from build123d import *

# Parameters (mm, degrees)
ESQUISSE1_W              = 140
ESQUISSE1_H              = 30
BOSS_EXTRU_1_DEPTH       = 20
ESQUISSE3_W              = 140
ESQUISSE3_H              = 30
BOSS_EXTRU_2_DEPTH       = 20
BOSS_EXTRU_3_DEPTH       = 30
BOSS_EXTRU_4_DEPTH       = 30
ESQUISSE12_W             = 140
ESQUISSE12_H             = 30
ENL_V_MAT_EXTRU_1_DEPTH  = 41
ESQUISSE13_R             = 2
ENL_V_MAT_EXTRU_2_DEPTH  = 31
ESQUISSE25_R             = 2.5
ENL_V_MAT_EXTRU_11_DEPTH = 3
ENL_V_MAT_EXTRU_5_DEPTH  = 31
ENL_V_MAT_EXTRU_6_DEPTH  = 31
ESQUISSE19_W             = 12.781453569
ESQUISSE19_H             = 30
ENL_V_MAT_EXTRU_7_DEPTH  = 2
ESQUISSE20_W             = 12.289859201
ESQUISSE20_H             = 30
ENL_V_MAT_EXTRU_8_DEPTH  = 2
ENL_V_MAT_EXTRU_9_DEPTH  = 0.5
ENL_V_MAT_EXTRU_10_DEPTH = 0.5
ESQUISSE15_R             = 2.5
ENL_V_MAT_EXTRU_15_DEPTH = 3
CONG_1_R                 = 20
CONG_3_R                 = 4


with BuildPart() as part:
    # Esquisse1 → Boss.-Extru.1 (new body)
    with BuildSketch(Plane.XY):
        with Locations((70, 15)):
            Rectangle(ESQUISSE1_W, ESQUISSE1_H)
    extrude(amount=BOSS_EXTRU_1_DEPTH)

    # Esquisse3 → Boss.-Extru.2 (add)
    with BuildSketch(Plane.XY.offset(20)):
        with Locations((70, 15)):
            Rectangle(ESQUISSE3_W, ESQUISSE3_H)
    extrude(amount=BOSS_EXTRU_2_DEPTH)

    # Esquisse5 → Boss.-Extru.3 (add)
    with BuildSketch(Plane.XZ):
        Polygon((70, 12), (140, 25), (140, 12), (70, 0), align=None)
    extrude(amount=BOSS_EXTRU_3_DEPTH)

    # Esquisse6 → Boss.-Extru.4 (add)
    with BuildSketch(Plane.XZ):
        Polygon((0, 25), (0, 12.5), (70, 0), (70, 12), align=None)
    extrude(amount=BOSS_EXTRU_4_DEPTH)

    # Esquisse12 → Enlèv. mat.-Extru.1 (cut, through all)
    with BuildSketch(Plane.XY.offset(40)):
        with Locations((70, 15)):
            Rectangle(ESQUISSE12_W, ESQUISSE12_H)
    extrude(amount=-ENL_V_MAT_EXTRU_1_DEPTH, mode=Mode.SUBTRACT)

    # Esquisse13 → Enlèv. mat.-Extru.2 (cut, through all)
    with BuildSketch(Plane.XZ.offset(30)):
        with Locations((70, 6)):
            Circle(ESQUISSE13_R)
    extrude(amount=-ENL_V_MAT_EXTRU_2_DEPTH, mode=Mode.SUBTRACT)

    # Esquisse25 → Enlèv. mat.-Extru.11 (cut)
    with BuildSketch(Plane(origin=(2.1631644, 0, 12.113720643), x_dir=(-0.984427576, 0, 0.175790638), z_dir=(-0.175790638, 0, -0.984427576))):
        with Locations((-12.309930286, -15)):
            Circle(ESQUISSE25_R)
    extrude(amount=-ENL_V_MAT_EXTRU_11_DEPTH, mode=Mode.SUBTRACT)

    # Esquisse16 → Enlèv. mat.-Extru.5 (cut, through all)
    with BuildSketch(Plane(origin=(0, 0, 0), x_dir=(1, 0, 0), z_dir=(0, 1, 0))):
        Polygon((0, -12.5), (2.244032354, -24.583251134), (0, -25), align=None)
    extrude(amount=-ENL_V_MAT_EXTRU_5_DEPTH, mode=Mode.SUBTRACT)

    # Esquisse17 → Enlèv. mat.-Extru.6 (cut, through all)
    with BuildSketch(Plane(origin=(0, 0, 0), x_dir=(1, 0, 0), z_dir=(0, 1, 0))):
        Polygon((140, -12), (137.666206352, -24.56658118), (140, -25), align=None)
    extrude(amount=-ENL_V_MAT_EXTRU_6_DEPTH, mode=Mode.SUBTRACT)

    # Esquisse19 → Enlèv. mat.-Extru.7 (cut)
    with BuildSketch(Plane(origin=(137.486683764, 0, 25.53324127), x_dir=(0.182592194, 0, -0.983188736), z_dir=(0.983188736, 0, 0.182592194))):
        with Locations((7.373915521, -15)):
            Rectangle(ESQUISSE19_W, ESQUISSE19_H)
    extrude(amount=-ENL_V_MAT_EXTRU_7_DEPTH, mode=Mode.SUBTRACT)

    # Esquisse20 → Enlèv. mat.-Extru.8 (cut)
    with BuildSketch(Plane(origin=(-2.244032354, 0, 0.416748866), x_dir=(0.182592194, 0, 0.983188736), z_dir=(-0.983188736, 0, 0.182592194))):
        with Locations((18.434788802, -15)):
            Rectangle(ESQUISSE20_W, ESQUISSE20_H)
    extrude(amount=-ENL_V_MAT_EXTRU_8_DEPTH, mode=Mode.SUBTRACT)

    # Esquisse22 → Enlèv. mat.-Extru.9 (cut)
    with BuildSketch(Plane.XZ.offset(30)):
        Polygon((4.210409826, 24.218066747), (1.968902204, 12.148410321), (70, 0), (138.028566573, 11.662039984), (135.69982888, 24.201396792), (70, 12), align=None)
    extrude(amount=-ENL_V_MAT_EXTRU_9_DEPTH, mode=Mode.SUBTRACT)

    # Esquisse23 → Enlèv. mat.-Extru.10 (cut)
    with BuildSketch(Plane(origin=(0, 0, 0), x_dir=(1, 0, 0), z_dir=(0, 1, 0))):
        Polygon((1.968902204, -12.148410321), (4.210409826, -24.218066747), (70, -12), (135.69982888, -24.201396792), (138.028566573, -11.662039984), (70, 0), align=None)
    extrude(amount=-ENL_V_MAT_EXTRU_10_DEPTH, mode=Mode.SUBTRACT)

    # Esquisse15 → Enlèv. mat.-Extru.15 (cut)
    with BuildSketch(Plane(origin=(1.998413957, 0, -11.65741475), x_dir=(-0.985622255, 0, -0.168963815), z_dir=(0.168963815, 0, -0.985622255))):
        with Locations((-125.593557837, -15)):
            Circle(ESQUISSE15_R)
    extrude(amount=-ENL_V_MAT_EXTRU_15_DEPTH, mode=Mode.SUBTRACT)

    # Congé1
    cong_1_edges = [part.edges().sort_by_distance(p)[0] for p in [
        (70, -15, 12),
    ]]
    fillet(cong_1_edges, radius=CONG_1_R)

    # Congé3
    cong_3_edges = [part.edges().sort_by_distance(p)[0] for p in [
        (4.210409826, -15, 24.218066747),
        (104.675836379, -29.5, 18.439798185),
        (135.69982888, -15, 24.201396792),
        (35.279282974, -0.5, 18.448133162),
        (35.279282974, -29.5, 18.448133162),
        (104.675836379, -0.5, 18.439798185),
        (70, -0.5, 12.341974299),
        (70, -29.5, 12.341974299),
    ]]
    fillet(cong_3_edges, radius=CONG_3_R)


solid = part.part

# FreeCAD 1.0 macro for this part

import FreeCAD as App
import Part
import Sketcher
Q = App.Units.Quantity


def edges_at(feature, points):
    """Names of the edges that pass closest to the given points."""
    edges = feature.Shape.Edges
    near = lambda p: min(range(len(edges)), key=lambda i: edges[i].distToShape(Part.Vertex(*p))[0])
    return sorted({f"Edge{near(p) + 1}" for p in points})

doc = App.newDocument("Part")
body = doc.addObject("PartDesign::Body", "Body")

# Sketch on XY plane
sketch1 = doc.addObject("Sketcher::SketchObject", "Sketch")
body.addObject(sketch1)
sketch1.AttachmentSupport = (doc.XY_Plane, [""])
sketch1.MapMode = "FlatFace"
sketch1.addGeometry(Part.LineSegment(App.Vector(0, 30, 0), App.Vector(0, 0, 0)), False)
sketch1.addGeometry(Part.LineSegment(App.Vector(0, 0, 0), App.Vector(140, 0, 0)), False)
sketch1.addGeometry(Part.LineSegment(App.Vector(140, 0, 0), App.Vector(140, 30, 0)), False)
sketch1.addGeometry(Part.LineSegment(App.Vector(140, 30, 0), App.Vector(0, 30, 0)), False)
sketch1.addConstraint(Sketcher.Constraint("Coincident", 0, 2, 1, 1))
sketch1.addConstraint(Sketcher.Constraint("Coincident", 1, 2, 2, 1))
sketch1.addConstraint(Sketcher.Constraint("Coincident", 2, 2, 3, 1))
sketch1.addConstraint(Sketcher.Constraint("Coincident", 3, 2, 0, 1))
sketch1.addConstraint(Sketcher.Constraint("Vertical", 0))
sketch1.addConstraint(Sketcher.Constraint("Horizontal", 1))
sketch1.addConstraint(Sketcher.Constraint("Vertical", 2))
sketch1.addConstraint(Sketcher.Constraint("Horizontal", 3))
sketch1.addConstraint(Sketcher.Constraint("Coincident", 0, 2, -1, 1))
sketch1.addConstraint(Sketcher.Constraint("DistanceX", 1, 1, 1, 2, Q("140 mm")))
sketch1.addConstraint(Sketcher.Constraint("DistanceY", 0, 2, 0, 1, Q("30 mm")))
pad1 = doc.addObject("PartDesign::Pad", "Pad")
body.addObject(pad1)
pad1.Profile = sketch1
pad1.Length = 20

# Sketch on XY plane
sketch2 = doc.addObject("Sketcher::SketchObject", "Sketch001")
body.addObject(sketch2)
sketch2.AttachmentSupport = (doc.XY_Plane, [""])
sketch2.MapMode = "FlatFace"
sketch2.AttachmentOffset = App.Placement(App.Vector(0, 0, 20), App.Rotation())
sketch2.addGeometry(Part.LineSegment(App.Vector(0, 30, 0), App.Vector(0, 0, 0)), False)
sketch2.addGeometry(Part.LineSegment(App.Vector(0, 0, 0), App.Vector(140, 0, 0)), False)
sketch2.addGeometry(Part.LineSegment(App.Vector(140, 0, 0), App.Vector(140, 30, 0)), False)
sketch2.addGeometry(Part.LineSegment(App.Vector(140, 30, 0), App.Vector(0, 30, 0)), False)
sketch2.addConstraint(Sketcher.Constraint("Coincident", 0, 2, 1, 1))
sketch2.addConstraint(Sketcher.Constraint("Coincident", 1, 2, 2, 1))
sketch2.addConstraint(Sketcher.Constraint("Coincident", 2, 2, 3, 1))
sketch2.addConstraint(Sketcher.Constraint("Coincident", 3, 2, 0, 1))
sketch2.addConstraint(Sketcher.Constraint("Vertical", 0))
sketch2.addConstraint(Sketcher.Constraint("Horizontal", 1))
sketch2.addConstraint(Sketcher.Constraint("Vertical", 2))
sketch2.addConstraint(Sketcher.Constraint("Horizontal", 3))
sketch2.addConstraint(Sketcher.Constraint("Coincident", 0, 2, -1, 1))
sketch2.addConstraint(Sketcher.Constraint("DistanceX", 1, 1, 1, 2, Q("140 mm")))
sketch2.addConstraint(Sketcher.Constraint("DistanceY", 0, 2, 0, 1, Q("30 mm")))
pad2 = doc.addObject("PartDesign::Pad", "Pad001")
body.addObject(pad2)
pad2.Profile = sketch2
pad2.Length = 20

# Sketch on XZ plane
sketch3 = doc.addObject("Sketcher::SketchObject", "Sketch002")
body.addObject(sketch3)
sketch3.AttachmentSupport = (doc.XZ_Plane, [""])
sketch3.MapMode = "FlatFace"
sketch3.addGeometry(Part.LineSegment(App.Vector(140, 25, 0), App.Vector(70, 12, 0)), False)
sketch3.addGeometry(Part.LineSegment(App.Vector(70, 12, 0), App.Vector(70, 0, 0)), False)
sketch3.addGeometry(Part.LineSegment(App.Vector(70, 0, 0), App.Vector(140, 12, 0)), False)
sketch3.addGeometry(Part.LineSegment(App.Vector(140, 12, 0), App.Vector(140, 25, 0)), False)
sketch3.addConstraint(Sketcher.Constraint("Coincident", 0, 2, 1, 1))
sketch3.addConstraint(Sketcher.Constraint("Coincident", 1, 2, 2, 1))
sketch3.addConstraint(Sketcher.Constraint("Coincident", 2, 2, 3, 1))
sketch3.addConstraint(Sketcher.Constraint("Coincident", 3, 2, 0, 1))
sketch3.addConstraint(Sketcher.Constraint("Vertical", 1))
sketch3.addConstraint(Sketcher.Constraint("Vertical", 3))
sketch3.addConstraint(Sketcher.Constraint("PointOnObject", 1, 2, -1))
sketch3.addConstraint(Sketcher.Constraint("Horizontal", 0, 2, 2, 2))
sketch3.addConstraint(Sketcher.Constraint("DistanceY", 1, 2, 1, 1, Q("12 mm")))
sketch3.addConstraint(Sketcher.Constraint("DistanceY", 3, 1, 3, 2, Q("13 mm")))
sketch3.addConstraint(Sketcher.Constraint("DistanceX", -1, 1, 0, 2, Q("70 mm")))
sketch3.addConstraint(Sketcher.Constraint("DistanceX", -1, 1, 2, 2, Q("140 mm")))
pad3 = doc.addObject("PartDesign::Pad", "Pad002")
body.addObject(pad3)
pad3.Profile = sketch3
pad3.Length = 30

# Sketch on XZ plane
sketch4 = doc.addObject("Sketcher::SketchObject", "Sketch003")
body.addObject(sketch4)
sketch4.AttachmentSupport = (doc.XZ_Plane, [""])
sketch4.MapMode = "FlatFace"
sketch4.addGeometry(Part.LineSegment(App.Vector(0, 25, 0), App.Vector(0, 12, 0)), False)
sketch4.addGeometry(Part.LineSegment(App.Vector(0, 12, 0), App.Vector(70, 0, 0)), False)
sketch4.addGeometry(Part.LineSegment(App.Vector(70, 0, 0), App.Vector(70, 12, 0)), False)
sketch4.addGeometry(Part.LineSegment(App.Vector(70, 12, 0), App.Vector(0, 25, 0)), False)
sketch4.addConstraint(Sketcher.Constraint("Coincident", 0, 2, 1, 1))
sketch4.addConstraint(Sketcher.Constraint("Coincident", 1, 2, 2, 1))
sketch4.addConstraint(Sketcher.Constraint("Coincident", 2, 2, 3, 1))
sketch4.addConstraint(Sketcher.Constraint("Coincident", 3, 2, 0, 1))
sketch4.addConstraint(Sketcher.Constraint("Vertical", 0))
sketch4.addConstraint(Sketcher.Constraint("Vertical", 2))
sketch4.addConstraint(Sketcher.Constraint("PointOnObject", 0, 2, -2))
sketch4.addConstraint(Sketcher.Constraint("PointOnObject", 1, 2, -1))
sketch4.addConstraint(Sketcher.Constraint("DistanceY", 2, 1, 2, 2, Q("12 mm")))
sketch4.addConstraint(Sketcher.Constraint("DistanceY", 0, 2, 0, 1, Q("12.5 mm")))
sketch4.addConstraint(Sketcher.Constraint("DistanceX", -1, 1, 1, 2, Q("70 mm")))
sketch4.addConstraint(Sketcher.Constraint("DistanceY", -1, 1, 3, 2, Q("25 mm")))
pad4 = doc.addObject("PartDesign::Pad", "Pad003")
body.addObject(pad4)
pad4.Profile = sketch4
pad4.Length = 30

# Sketch on XY plane
sketch5 = doc.addObject("Sketcher::SketchObject", "Sketch004")
body.addObject(sketch5)
sketch5.AttachmentSupport = (doc.XY_Plane, [""])
sketch5.MapMode = "FlatFace"
sketch5.AttachmentOffset = App.Placement(App.Vector(0, 0, 40), App.Rotation())
sketch5.addGeometry(Part.LineSegment(App.Vector(0, 30, 0), App.Vector(0, 0, 0)), False)
sketch5.addGeometry(Part.LineSegment(App.Vector(0, 0, 0), App.Vector(140, 0, 0)), False)
sketch5.addGeometry(Part.LineSegment(App.Vector(140, 0, 0), App.Vector(140, 30, 0)), False)
sketch5.addGeometry(Part.LineSegment(App.Vector(140, 30, 0), App.Vector(0, 30, 0)), False)
sketch5.addConstraint(Sketcher.Constraint("Coincident", 0, 2, 1, 1))
sketch5.addConstraint(Sketcher.Constraint("Coincident", 1, 2, 2, 1))
sketch5.addConstraint(Sketcher.Constraint("Coincident", 2, 2, 3, 1))
sketch5.addConstraint(Sketcher.Constraint("Coincident", 3, 2, 0, 1))
sketch5.addConstraint(Sketcher.Constraint("Vertical", 0))
sketch5.addConstraint(Sketcher.Constraint("Horizontal", 1))
sketch5.addConstraint(Sketcher.Constraint("Vertical", 2))
sketch5.addConstraint(Sketcher.Constraint("Horizontal", 3))
sketch5.addConstraint(Sketcher.Constraint("Coincident", 0, 2, -1, 1))
sketch5.addConstraint(Sketcher.Constraint("DistanceX", 1, 1, 1, 2, Q("140 mm")))
sketch5.addConstraint(Sketcher.Constraint("DistanceY", 0, 2, 0, 1, Q("30 mm")))
pocket1 = doc.addObject("PartDesign::Pocket", "Pocket")
body.addObject(pocket1)
pocket1.Profile = sketch5
pocket1.Type = "ThroughAll"

# Sketch on XZ plane
sketch6 = doc.addObject("Sketcher::SketchObject", "Sketch005")
body.addObject(sketch6)
sketch6.AttachmentSupport = (doc.XZ_Plane, [""])
sketch6.MapMode = "FlatFace"
sketch6.AttachmentOffset = App.Placement(App.Vector(0, 0, 30), App.Rotation())
sketch6.addGeometry(Part.Circle(App.Vector(70, 6, 0), App.Vector(0, 0, 1), 2), False)
sketch6.addConstraint(Sketcher.Constraint("Diameter", 0, Q("4 mm")))
sketch6.addConstraint(Sketcher.Constraint("DistanceX", -1, 1, 0, 3, Q("70 mm")))
sketch6.addConstraint(Sketcher.Constraint("DistanceY", -1, 1, 0, 3, Q("6 mm")))
pocket2 = doc.addObject("PartDesign::Pocket", "Pocket001")
body.addObject(pocket2)
pocket2.Profile = sketch6
pocket2.Type = "ThroughAll"

# Sketch on an angled plane
sketch7 = doc.addObject("Sketcher::SketchObject", "Sketch006")
body.addObject(sketch7)
sketch7.Placement = App.Placement(App.Vector(2.163164, 0, 12.113721), App.Rotation(App.Vector(-0.984427576, 0, 0.175790638), App.Vector(0, 1.000000001, 0), App.Vector(-0.175790638, 0, -0.984427576), "ZXY"))
sketch7.addGeometry(Part.Circle(App.Vector(-12.3, -15, 0), App.Vector(0, 0, 1), 2.5), False)
sketch7.addConstraint(Sketcher.Constraint("Diameter", 0, Q("5 mm")))
sketch7.addConstraint(Sketcher.Constraint("DistanceY", 0, 3, -1, 1, Q("15 mm")))
sketch7.addConstraint(Sketcher.Constraint("DistanceX", 0, 3, -1, 1, Q("12.30993 mm")))
pocket3 = doc.addObject("PartDesign::Pocket", "Pocket002")
body.addObject(pocket3)
pocket3.Profile = sketch7
pocket3.Length = 3

# Sketch on XZ plane
sketch8 = doc.addObject("Sketcher::SketchObject", "Sketch007")
body.addObject(sketch8)
sketch8.AttachmentSupport = (doc.XZ_Plane, [""])
sketch8.MapMode = "FlatFace"
sketch8.addGeometry(Part.LineSegment(App.Vector(2.2, 24.6, 0), App.Vector(0, 12.5, 0)), False)
sketch8.addGeometry(Part.LineSegment(App.Vector(0, 12.5, 0), App.Vector(0, 25, 0)), False)
sketch8.addGeometry(Part.LineSegment(App.Vector(0, 25, 0), App.Vector(2.2, 24.6, 0)), False)
sketch8.addConstraint(Sketcher.Constraint("Coincident", 0, 2, 1, 1))
sketch8.addConstraint(Sketcher.Constraint("Coincident", 1, 2, 2, 1))
sketch8.addConstraint(Sketcher.Constraint("Coincident", 2, 2, 0, 1))
sketch8.addConstraint(Sketcher.Constraint("Vertical", 1))
sketch8.addConstraint(Sketcher.Constraint("PointOnObject", 0, 2, -2))
sketch8.addConstraint(Sketcher.Constraint("Perpendicular", 0, 2))
sketch8.addConstraint(Sketcher.Constraint("DistanceY", 1, 1, 1, 2, Q("12.5 mm")))
sketch8.addConstraint(Sketcher.Constraint("DistanceY", -1, 1, 1, 2, Q("25 mm")))
sketch8.addConstraint(Sketcher.Constraint("Distance", 0, Q("12.289859 mm")))
pocket4 = doc.addObject("PartDesign::Pocket", "Pocket003")
body.addObject(pocket4)
pocket4.Profile = sketch8
pocket4.Type = "ThroughAll"
pocket4.Reversed = True

# Sketch on XZ plane
sketch9 = doc.addObject("Sketcher::SketchObject", "Sketch008")
body.addObject(sketch9)
sketch9.AttachmentSupport = (doc.XZ_Plane, [""])
sketch9.MapMode = "FlatFace"
sketch9.addGeometry(Part.LineSegment(App.Vector(140, 12, 0), App.Vector(137.7, 24.6, 0)), False)
sketch9.addGeometry(Part.LineSegment(App.Vector(137.7, 24.6, 0), App.Vector(140, 25, 0)), False)
sketch9.addGeometry(Part.LineSegment(App.Vector(140, 25, 0), App.Vector(140, 12, 0)), False)
sketch9.addConstraint(Sketcher.Constraint("Coincident", 0, 2, 1, 1))
sketch9.addConstraint(Sketcher.Constraint("Coincident", 1, 2, 2, 1))
sketch9.addConstraint(Sketcher.Constraint("Coincident", 2, 2, 0, 1))
sketch9.addConstraint(Sketcher.Constraint("Vertical", 2))
sketch9.addConstraint(Sketcher.Constraint("Perpendicular", 0, 1))
sketch9.addConstraint(Sketcher.Constraint("DistanceY", 2, 2, 2, 1, Q("13 mm")))
sketch9.addConstraint(Sketcher.Constraint("DistanceX", -1, 1, 1, 2, Q("140 mm")))
sketch9.addConstraint(Sketcher.Constraint("DistanceY", -1, 1, 1, 2, Q("25 mm")))
sketch9.addConstraint(Sketcher.Constraint("Distance", 1, Q("2.373699 mm")))
pocket5 = doc.addObject("PartDesign::Pocket", "Pocket004")
body.addObject(pocket5)
pocket5.Profile = sketch9
pocket5.Type = "ThroughAll"
pocket5.Reversed = True

# Sketch on an angled plane
sketch10 = doc.addObject("Sketcher::SketchObject", "Sketch009")
body.addObject(sketch10)
sketch10.Placement = App.Placement(App.Vector(137.486684, 0, 25.533241), App.Rotation(App.Vector(0.182592194, 0, -0.983188736), App.Vector(0, 1, 0), App.Vector(0.983188736, 0, 0.182592194), "ZXY"))
sketch10.addGeometry(Part.LineSegment(App.Vector(1, 0, 0), App.Vector(1, -30, 0)), False)
sketch10.addGeometry(Part.LineSegment(App.Vector(1, -30, 0), App.Vector(14, -30, 0)), False)
sketch10.addGeometry(Part.LineSegment(App.Vector(14, -30, 0), App.Vector(14, 0, 0)), False)
sketch10.addGeometry(Part.LineSegment(App.Vector(14, 0, 0), App.Vector(1, 0, 0)), False)
sketch10.addConstraint(Sketcher.Constraint("Coincident", 0, 2, 1, 1))
sketch10.addConstraint(Sketcher.Constraint("Coincident", 1, 2, 2, 1))
sketch10.addConstraint(Sketcher.Constraint("Coincident", 2, 2, 3, 1))
sketch10.addConstraint(Sketcher.Constraint("Coincident", 3, 2, 0, 1))
sketch10.addConstraint(Sketcher.Constraint("Vertical", 0))
sketch10.addConstraint(Sketcher.Constraint("Horizontal", 1))
sketch10.addConstraint(Sketcher.Constraint("Vertical", 2))
sketch10.addConstraint(Sketcher.Constraint("Horizontal", 3))
sketch10.addConstraint(Sketcher.Constraint("PointOnObject", 2, 2, -1))
sketch10.addConstraint(Sketcher.Constraint("DistanceY", 0, 2, 0, 1, Q("30 mm")))
sketch10.addConstraint(Sketcher.Constraint("DistanceX", 1, 1, 1, 2, Q("12.781454 mm")))
sketch10.addConstraint(Sketcher.Constraint("DistanceX", -1, 1, 0, 2, Q("0.983189 mm")))
pocket6 = doc.addObject("PartDesign::Pocket", "Pocket005")
body.addObject(pocket6)
pocket6.Profile = sketch10
pocket6.Length = 2

# Sketch on an angled plane
sketch11 = doc.addObject("Sketcher::SketchObject", "Sketch010")
body.addObject(sketch11)
sketch11.Placement = App.Placement(App.Vector(-2.244032, 0, 0.416749), App.Rotation(App.Vector(0.182592194, 0, 0.983188736), App.Vector(0, 1, 0), App.Vector(-0.983188736, 0, 0.182592194), "ZXY"))
sketch11.addGeometry(Part.LineSegment(App.Vector(12, 0, 0), App.Vector(12, -30, 0)), False)
sketch11.addGeometry(Part.LineSegment(App.Vector(12, -30, 0), App.Vector(25, -30, 0)), False)
sketch11.addGeometry(Part.LineSegment(App.Vector(25, -30, 0), App.Vector(25, 0, 0)), False)
sketch11.addGeometry(Part.LineSegment(App.Vector(25, 0, 0), App.Vector(12, 0, 0)), False)
sketch11.addConstraint(Sketcher.Constraint("Coincident", 0, 2, 1, 1))
sketch11.addConstraint(Sketcher.Constraint("Coincident", 1, 2, 2, 1))
sketch11.addConstraint(Sketcher.Constraint("Coincident", 2, 2, 3, 1))
sketch11.addConstraint(Sketcher.Constraint("Coincident", 3, 2, 0, 1))
sketch11.addConstraint(Sketcher.Constraint("Vertical", 0))
sketch11.addConstraint(Sketcher.Constraint("Horizontal", 1))
sketch11.addConstraint(Sketcher.Constraint("Vertical", 2))
sketch11.addConstraint(Sketcher.Constraint("Horizontal", 3))
sketch11.addConstraint(Sketcher.Constraint("PointOnObject", 2, 2, -1))
sketch11.addConstraint(Sketcher.Constraint("DistanceY", 0, 2, 0, 1, Q("30 mm")))
sketch11.addConstraint(Sketcher.Constraint("DistanceX", 1, 1, 1, 2, Q("12.289859 mm")))
sketch11.addConstraint(Sketcher.Constraint("DistanceX", -1, 1, 0, 2, Q("12.289859 mm")))
pocket7 = doc.addObject("PartDesign::Pocket", "Pocket006")
body.addObject(pocket7)
pocket7.Profile = sketch11
pocket7.Length = 2

# Sketch on XZ plane
sketch12 = doc.addObject("Sketcher::SketchObject", "Sketch011")
body.addObject(sketch12)
sketch12.AttachmentSupport = (doc.XZ_Plane, [""])
sketch12.MapMode = "FlatFace"
sketch12.AttachmentOffset = App.Placement(App.Vector(0, 0, 30), App.Rotation())
sketch12.addGeometry(Part.LineSegment(App.Vector(4, 24, 0), App.Vector(2, 12, 0)), False)
sketch12.addGeometry(Part.LineSegment(App.Vector(2, 12, 0), App.Vector(70, 0, 0)), False)
sketch12.addGeometry(Part.LineSegment(App.Vector(70, 0, 0), App.Vector(138, 12, 0)), False)
sketch12.addGeometry(Part.LineSegment(App.Vector(138, 12, 0), App.Vector(136, 24, 0)), False)
sketch12.addGeometry(Part.LineSegment(App.Vector(136, 24, 0), App.Vector(70, 12, 0)), False)
sketch12.addGeometry(Part.LineSegment(App.Vector(70, 12, 0), App.Vector(4, 24, 0)), False)
sketch12.addConstraint(Sketcher.Constraint("Coincident", 0, 2, 1, 1))
sketch12.addConstraint(Sketcher.Constraint("Coincident", 1, 2, 2, 1))
sketch12.addConstraint(Sketcher.Constraint("Coincident", 2, 2, 3, 1))
sketch12.addConstraint(Sketcher.Constraint("Coincident", 3, 2, 4, 1))
sketch12.addConstraint(Sketcher.Constraint("Coincident", 4, 2, 5, 1))
sketch12.addConstraint(Sketcher.Constraint("Coincident", 5, 2, 0, 1))
sketch12.addConstraint(Sketcher.Constraint("PointOnObject", 1, 2, -1))
sketch12.addConstraint(Sketcher.Constraint("Perpendicular", 3, 4))
sketch12.addConstraint(Sketcher.Constraint("Perpendicular", 0, 5))
sketch12.addConstraint(Sketcher.Constraint("Vertical", 1, 2, 4, 2))
sketch12.addConstraint(Sketcher.Constraint("DistanceX", -1, 1, 1, 2, Q("70 mm")))
sketch12.addConstraint(Sketcher.Constraint("DistanceY", -1, 1, 4, 2, Q("12 mm")))
sketch12.addConstraint(Sketcher.Constraint("Distance", 2, Q("69.020932 mm")))
sketch12.addConstraint(Sketcher.Constraint("Distance", 4, Q("66.823212 mm")))
sketch12.addConstraint(Sketcher.Constraint("DistanceY", -1, 1, 0, 2, Q("12.14841 mm")))
sketch12.addConstraint(Sketcher.Constraint("DistanceY", -1, 1, 2, 2, Q("11.66204 mm")))
sketch12.addConstraint(Sketcher.Constraint("DistanceX", -1, 1, 5, 2, Q("4.21041 mm")))
sketch12.addConstraint(Sketcher.Constraint("DistanceY", 3, 2, 5, 2, Q("0.01667 mm")))
pocket8 = doc.addObject("PartDesign::Pocket", "Pocket007")
body.addObject(pocket8)
pocket8.Profile = sketch12
pocket8.Length = 0.5

# Sketch on XZ plane
sketch13 = doc.addObject("Sketcher::SketchObject", "Sketch012")
body.addObject(sketch13)
sketch13.AttachmentSupport = (doc.XZ_Plane, [""])
sketch13.MapMode = "FlatFace"
sketch13.addGeometry(Part.LineSegment(App.Vector(1.968902, 12.14841, 0), App.Vector(4.21041, 24.218067, 0)), False)
sketch13.addGeometry(Part.LineSegment(App.Vector(4.21041, 24.218067, 0), App.Vector(70, 12, 0)), False)
sketch13.addGeometry(Part.LineSegment(App.Vector(70, 12, 0), App.Vector(135.699829, 24.201397, 0)), False)
sketch13.addGeometry(Part.LineSegment(App.Vector(135.699829, 24.201397, 0), App.Vector(138.028567, 11.66204, 0)), False)
sketch13.addGeometry(Part.LineSegment(App.Vector(138.028567, 11.66204, 0), App.Vector(70, 0, 0)), False)
sketch13.addGeometry(Part.LineSegment(App.Vector(70, 0, 0), App.Vector(1.968902, 12.14841, 0)), False)
sketch13.addConstraint(Sketcher.Constraint("Coincident", 0, 2, 1, 1))
sketch13.addConstraint(Sketcher.Constraint("Coincident", 1, 2, 2, 1))
sketch13.addConstraint(Sketcher.Constraint("Coincident", 2, 2, 3, 1))
sketch13.addConstraint(Sketcher.Constraint("Coincident", 3, 2, 4, 1))
sketch13.addConstraint(Sketcher.Constraint("Coincident", 4, 2, 5, 1))
sketch13.addConstraint(Sketcher.Constraint("Coincident", 5, 2, 0, 1))
sketch13.addConstraint(Sketcher.Constraint("PointOnObject", 4, 2, -1))
sketch13.addConstraint(Sketcher.Constraint("DistanceX", -1, 1, 1, 2, Q("70 mm")))
sketch13.addConstraint(Sketcher.Constraint("DistanceY", -1, 1, 1, 2, Q("12 mm")))
sketch13.addConstraint(Sketcher.Constraint("DistanceX", -1, 1, 4, 2, Q("70 mm")))
sketch13.addConstraint(Sketcher.Constraint("Distance", 2, Q("66.823212 mm")))
sketch13.addConstraint(Sketcher.Constraint("Distance", 4, Q("69.020932 mm")))
sketch13.addConstraint(Sketcher.Constraint("DistanceX", -1, 1, 0, 2, Q("4.21041 mm")))
sketch13.addConstraint(Sketcher.Constraint("DistanceX", -1, 1, 2, 2, Q("135.699829 mm")))
sketch13.addConstraint(Sketcher.Constraint("DistanceY", -1, 1, 3, 2, Q("11.66204 mm")))
sketch13.addConstraint(Sketcher.Constraint("DistanceY", -1, 1, 5, 2, Q("12.14841 mm")))
sketch13.addConstraint(Sketcher.Constraint("DistanceY", 2, 2, 0, 2, Q("0.01667 mm")))
sketch13.addConstraint(Sketcher.Constraint("Distance", 0, Q("12.276032 mm")))
pocket9 = doc.addObject("PartDesign::Pocket", "Pocket008")
body.addObject(pocket9)
pocket9.Profile = sketch13
pocket9.Length = 0.5
pocket9.Reversed = True

# Sketch on an angled plane
sketch14 = doc.addObject("Sketcher::SketchObject", "Sketch013")
body.addObject(sketch14)
sketch14.Placement = App.Placement(App.Vector(1.998414, 0, -11.657415), App.Rotation(App.Vector(-0.985622255, 0, -0.168963815), App.Vector(0, 1, 0), App.Vector(0.168963815, 0, -0.985622255), "ZXY"))
sketch14.addGeometry(Part.Circle(App.Vector(-125.6, -15, 0), App.Vector(0, 0, 1), 2.5), False)
sketch14.addConstraint(Sketcher.Constraint("Diameter", 0, Q("5 mm")))
sketch14.addConstraint(Sketcher.Constraint("DistanceY", 0, 3, -1, 1, Q("15 mm")))
sketch14.addConstraint(Sketcher.Constraint("DistanceX", 0, 3, -1, 1, Q("125.593558 mm")))
pocket10 = doc.addObject("PartDesign::Pocket", "Pocket009")
body.addObject(pocket10)
pocket10.Profile = sketch14
pocket10.Length = 3
doc.recompute()

fillet = doc.addObject("PartDesign::Fillet", "Fillet")
body.addObject(fillet)
fillet.Base = (pocket10, edges_at(pocket10, [(70, -15, 12)]))
fillet.Radius = 20
doc.recompute()

fillet2 = doc.addObject("PartDesign::Fillet", "Fillet001")
body.addObject(fillet2)
fillet2.Base = (fillet, edges_at(fillet, [
    (4.21, -15, 24.218),
    (104.676, -29.5, 18.44),
    (135.7, -15, 24.201),
    (35.279, -0.5, 18.448),
    (35.279, -29.5, 18.448),
    (104.676, -0.5, 18.44),
    (70, -0.5, 12.342),
    (70, -29.5, 12.342),
]))
fillet2.Radius = 4

doc.recompute()
